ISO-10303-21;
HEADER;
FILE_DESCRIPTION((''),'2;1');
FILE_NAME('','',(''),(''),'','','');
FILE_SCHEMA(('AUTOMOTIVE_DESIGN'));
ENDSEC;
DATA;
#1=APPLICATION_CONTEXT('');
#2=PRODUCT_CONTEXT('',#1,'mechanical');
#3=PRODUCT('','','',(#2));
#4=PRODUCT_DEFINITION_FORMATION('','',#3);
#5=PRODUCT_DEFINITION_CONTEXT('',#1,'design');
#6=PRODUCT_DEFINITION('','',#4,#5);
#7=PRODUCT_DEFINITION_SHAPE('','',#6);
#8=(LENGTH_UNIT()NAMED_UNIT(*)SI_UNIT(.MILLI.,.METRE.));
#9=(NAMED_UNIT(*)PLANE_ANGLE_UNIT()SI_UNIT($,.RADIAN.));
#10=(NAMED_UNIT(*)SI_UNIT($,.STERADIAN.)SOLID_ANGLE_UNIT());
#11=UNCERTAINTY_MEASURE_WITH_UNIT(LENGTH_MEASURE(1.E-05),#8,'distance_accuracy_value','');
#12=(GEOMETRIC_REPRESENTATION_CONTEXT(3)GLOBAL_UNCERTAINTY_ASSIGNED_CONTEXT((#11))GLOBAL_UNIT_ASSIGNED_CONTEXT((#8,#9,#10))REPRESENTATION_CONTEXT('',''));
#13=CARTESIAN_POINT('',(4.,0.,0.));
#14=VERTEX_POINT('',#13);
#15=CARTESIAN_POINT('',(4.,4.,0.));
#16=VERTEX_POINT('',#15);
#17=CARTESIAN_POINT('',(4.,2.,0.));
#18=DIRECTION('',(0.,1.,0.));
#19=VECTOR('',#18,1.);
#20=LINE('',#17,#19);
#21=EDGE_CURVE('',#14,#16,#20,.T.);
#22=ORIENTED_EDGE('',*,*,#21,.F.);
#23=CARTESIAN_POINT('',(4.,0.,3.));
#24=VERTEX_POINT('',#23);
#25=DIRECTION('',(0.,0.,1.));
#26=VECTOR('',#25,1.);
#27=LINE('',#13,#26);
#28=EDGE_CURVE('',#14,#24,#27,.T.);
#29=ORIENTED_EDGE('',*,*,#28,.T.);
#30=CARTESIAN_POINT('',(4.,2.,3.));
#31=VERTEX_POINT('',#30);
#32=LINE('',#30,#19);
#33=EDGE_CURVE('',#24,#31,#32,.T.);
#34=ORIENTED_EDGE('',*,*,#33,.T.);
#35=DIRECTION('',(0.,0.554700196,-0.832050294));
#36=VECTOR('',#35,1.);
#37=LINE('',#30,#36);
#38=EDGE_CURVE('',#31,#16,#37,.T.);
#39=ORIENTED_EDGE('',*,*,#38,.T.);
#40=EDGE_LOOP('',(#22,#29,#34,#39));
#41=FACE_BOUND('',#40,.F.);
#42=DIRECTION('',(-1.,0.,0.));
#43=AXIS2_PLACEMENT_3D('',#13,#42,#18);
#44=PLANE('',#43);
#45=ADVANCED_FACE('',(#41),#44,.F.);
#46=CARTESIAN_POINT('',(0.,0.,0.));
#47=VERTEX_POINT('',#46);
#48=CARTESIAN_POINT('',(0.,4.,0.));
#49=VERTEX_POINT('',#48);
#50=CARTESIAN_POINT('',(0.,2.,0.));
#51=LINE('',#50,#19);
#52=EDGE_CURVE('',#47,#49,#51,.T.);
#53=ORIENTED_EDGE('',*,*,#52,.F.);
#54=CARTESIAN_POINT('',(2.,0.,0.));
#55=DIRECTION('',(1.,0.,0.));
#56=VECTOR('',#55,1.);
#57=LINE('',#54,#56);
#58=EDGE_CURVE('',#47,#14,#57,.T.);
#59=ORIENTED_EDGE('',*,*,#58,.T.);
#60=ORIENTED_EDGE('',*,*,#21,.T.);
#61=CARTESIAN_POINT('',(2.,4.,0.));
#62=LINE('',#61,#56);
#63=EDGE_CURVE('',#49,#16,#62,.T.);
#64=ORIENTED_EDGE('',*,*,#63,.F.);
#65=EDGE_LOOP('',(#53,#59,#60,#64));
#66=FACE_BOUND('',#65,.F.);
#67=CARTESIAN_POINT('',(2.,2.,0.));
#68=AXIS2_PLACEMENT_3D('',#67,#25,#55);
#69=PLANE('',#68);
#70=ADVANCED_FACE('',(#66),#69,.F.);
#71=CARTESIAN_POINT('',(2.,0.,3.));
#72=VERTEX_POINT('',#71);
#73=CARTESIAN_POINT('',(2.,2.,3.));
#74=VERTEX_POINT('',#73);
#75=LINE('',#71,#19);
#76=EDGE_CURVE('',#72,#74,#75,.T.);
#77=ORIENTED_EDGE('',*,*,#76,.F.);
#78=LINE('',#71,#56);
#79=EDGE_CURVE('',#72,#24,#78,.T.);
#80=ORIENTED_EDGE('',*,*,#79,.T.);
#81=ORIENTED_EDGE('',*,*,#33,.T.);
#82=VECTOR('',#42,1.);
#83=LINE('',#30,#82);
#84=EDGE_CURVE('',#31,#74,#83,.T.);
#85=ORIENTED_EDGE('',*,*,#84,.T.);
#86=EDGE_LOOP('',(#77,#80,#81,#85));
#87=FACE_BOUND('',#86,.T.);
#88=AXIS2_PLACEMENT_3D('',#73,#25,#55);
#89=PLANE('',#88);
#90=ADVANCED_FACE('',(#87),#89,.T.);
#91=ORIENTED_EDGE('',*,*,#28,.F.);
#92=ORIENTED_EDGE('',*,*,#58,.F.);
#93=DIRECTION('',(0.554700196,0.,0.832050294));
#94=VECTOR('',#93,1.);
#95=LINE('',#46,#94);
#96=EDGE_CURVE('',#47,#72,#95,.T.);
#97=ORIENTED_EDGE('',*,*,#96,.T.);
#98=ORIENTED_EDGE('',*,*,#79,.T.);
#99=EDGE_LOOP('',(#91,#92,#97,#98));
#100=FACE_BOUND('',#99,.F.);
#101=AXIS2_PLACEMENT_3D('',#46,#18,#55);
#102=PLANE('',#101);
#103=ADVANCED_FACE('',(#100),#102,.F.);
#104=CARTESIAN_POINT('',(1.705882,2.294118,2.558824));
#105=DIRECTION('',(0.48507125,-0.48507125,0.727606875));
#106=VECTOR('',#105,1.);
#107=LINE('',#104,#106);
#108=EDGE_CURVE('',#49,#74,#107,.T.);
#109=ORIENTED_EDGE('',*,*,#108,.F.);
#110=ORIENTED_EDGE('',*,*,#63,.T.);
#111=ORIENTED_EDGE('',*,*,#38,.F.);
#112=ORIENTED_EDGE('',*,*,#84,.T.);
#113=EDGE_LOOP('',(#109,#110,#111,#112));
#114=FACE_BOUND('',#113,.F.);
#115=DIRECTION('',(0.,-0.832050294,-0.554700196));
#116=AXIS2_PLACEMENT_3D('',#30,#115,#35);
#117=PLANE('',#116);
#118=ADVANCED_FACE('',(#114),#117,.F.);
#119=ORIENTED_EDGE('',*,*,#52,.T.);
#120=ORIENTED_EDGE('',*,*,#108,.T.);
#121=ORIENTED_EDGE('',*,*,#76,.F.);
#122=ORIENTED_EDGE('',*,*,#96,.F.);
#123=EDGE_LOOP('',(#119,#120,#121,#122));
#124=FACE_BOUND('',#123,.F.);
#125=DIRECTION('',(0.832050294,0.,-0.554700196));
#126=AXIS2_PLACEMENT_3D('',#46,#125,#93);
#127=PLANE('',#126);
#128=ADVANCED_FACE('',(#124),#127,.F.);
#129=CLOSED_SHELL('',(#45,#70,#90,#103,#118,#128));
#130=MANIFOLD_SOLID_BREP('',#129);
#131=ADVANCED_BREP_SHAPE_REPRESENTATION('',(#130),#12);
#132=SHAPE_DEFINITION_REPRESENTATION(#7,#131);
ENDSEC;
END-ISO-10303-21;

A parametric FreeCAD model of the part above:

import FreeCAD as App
import Part
import Sketcher

V = App.Vector
Q = App.Units.Quantity

doc = App.newDocument("Part")
params = doc.addObject("Spreadsheet::Sheet", "Params")
for row, (alias, value) in enumerate([
    ("sketch1_width", "4 mm"),
    ("pad1_length", "3 mm"),
    ("sketch2_width", "2 mm"),
    ("sketch2_height", "3 mm"),
    ("pocket1_length", "25 mm"),
    ("sketch3_width", "2 mm"),
    ("sketch3_height", "3 mm"),
    ("pocket2_length", "25 mm"),
], start=1):
    params.set(f"A{row}", alias)
    params.set(f"B{row}", "=" + value)
    params.setAlias(f"B{row}", alias)

body = doc.addObject("PartDesign::Body", "Body")

sketch1 = body.newObject("Sketcher::SketchObject", "Sketch")
sketch1.AttachmentSupport = (doc.getObject("XY_Plane"), [""])
sketch1.MapMode = "FlatFace"
sketch1.addGeometry([
    Part.LineSegment(V(0, 4, 0), V(0, 0, 0)),
    Part.LineSegment(V(0, 0, 0), V(4, 0, 0)),
    Part.LineSegment(V(4, 0, 0), V(4, 4, 0)),
    Part.LineSegment(V(4, 4, 0), V(0, 4, 0)),
], False)
sketch1.addConstraint([
    Sketcher.Constraint("Coincident", 0, 2, 1, 1),
    Sketcher.Constraint("Coincident", 1, 2, 2, 1),
    Sketcher.Constraint("Coincident", 2, 2, 3, 1),
    Sketcher.Constraint("Coincident", 3, 2, 0, 1),
    Sketcher.Constraint("Vertical", 0),
    Sketcher.Constraint("Horizontal", 1),
    Sketcher.Constraint("Vertical", 2),
    Sketcher.Constraint("Horizontal", 3),
    Sketcher.Constraint("Coincident", 0, 2, -1, 1),
    Sketcher.Constraint("Equal", 3, 0),
    Sketcher.Constraint("DistanceX", 1, 1, 1, 2, Q("4 mm")),
])
sketch1.setExpression("Constraints[10]", "Params.sketch1_width")
pad1 = body.newObject("PartDesign::Pad", "Pad")
pad1.Profile = sketch1
pad1.setExpression("Length", "Params.pad1_length")

sketch2 = body.newObject("Sketcher::SketchObject", "Sketch001")
sketch2.AttachmentSupport = (doc.getObject("YZ_Plane"), [""])
sketch2.MapMode = "FlatFace"
sketch2.AttachmentOffset = App.Placement(V(0, 0, 4), App.Rotation())
sketch2.addGeometry([
    Part.LineSegment(V(2, 3, 0), V(4, 0, 0)),
    Part.LineSegment(V(4, 0, 0), V(4, 3, 0)),
    Part.LineSegment(V(4, 3, 0), V(2, 3, 0)),
], False)
sketch2.addConstraint([
    Sketcher.Constraint("Coincident", 0, 2, 1, 1),
    Sketcher.Constraint("Coincident", 1, 2, 2, 1),
    Sketcher.Constraint("Coincident", 2, 2, 0, 1),
    Sketcher.Constraint("Vertical", 1),
    Sketcher.Constraint("Horizontal", 2),
    Sketcher.Constraint("PointOnObject", 0, 2, -1),
    Sketcher.Constraint("DistanceX", 2, 2, 2, 1, Q("2 mm")),
    Sketcher.Constraint("DistanceY", 1, 1, 1, 2, Q("3 mm")),
    Sketcher.Constraint("DistanceX", -1, 1, 0, 2, Q("4 mm")),
])
sketch2.setExpression("Constraints[6]", "Params.sketch2_width")
sketch2.setExpression("Constraints[7]", "Params.sketch2_height")
pocket1 = body.newObject("PartDesign::Pocket", "Pocket")
pocket1.Profile = sketch2
pocket1.setExpression("Length", "Params.pocket1_length")

sketch3 = body.newObject("Sketcher::SketchObject", "Sketch002")
sketch3.AttachmentSupport = (doc.getObject("XZ_Plane"), [""])
sketch3.MapMode = "FlatFace"
sketch3.addGeometry([
    Part.LineSegment(V(0, 0, 0), V(2, 3, 0)),
    Part.LineSegment(V(2, 3, 0), V(0, 3, 0)),
    Part.LineSegment(V(0, 3, 0), V(0, 0, 0)),
], False)
sketch3.addConstraint([
    Sketcher.Constraint("Coincident", 0, 2, 1, 1),
    Sketcher.Constraint("Coincident", 1, 2, 2, 1),
    Sketcher.Constraint("Coincident", 2, 2, 0, 1),
    Sketcher.Constraint("Horizontal", 1),
    Sketcher.Constraint("Vertical", 2),
    Sketcher.Constraint("Coincident", 2, 2, -1, 1),
    Sketcher.Constraint("DistanceX", 1, 2, 1, 1, Q("2 mm")),
    Sketcher.Constraint("DistanceY", 2, 2, 2, 1, Q("3 mm")),
])
sketch3.setExpression("Constraints[6]", "Params.sketch3_width")
sketch3.setExpression("Constraints[7]", "Params.sketch3_height")
pocket2 = body.newObject("PartDesign::Pocket", "Pocket001")
pocket2.Profile = sketch3
pocket2.setExpression("Length", "Params.pocket2_length")

doc.recompute()
